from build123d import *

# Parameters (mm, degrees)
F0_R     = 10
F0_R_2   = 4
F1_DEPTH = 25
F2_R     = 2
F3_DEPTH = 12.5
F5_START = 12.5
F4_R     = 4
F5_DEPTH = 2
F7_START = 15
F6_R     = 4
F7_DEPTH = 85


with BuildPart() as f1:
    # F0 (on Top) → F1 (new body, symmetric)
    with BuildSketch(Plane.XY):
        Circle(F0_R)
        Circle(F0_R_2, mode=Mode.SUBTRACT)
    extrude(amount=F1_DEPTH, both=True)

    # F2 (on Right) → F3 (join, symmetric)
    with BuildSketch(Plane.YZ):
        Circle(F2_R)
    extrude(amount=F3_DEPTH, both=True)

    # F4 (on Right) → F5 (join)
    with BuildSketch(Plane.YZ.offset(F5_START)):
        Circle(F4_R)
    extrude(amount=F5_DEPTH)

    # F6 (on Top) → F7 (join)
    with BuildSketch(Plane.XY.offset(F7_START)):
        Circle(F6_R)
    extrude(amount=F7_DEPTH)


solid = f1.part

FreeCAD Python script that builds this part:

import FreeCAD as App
import Part
import Sketcher
Q = App.Units.Quantity

doc = App.newDocument("Part")
body = doc.addObject("PartDesign::Body", "Body")

# Sketch on XY plane
sketch1 = doc.addObject("Sketcher::SketchObject", "Sketch")
body.addObject(sketch1)
sketch1.AttachmentSupport = (doc.XY_Plane, [""])
sketch1.MapMode = "FlatFace"
sketch1.addGeometry([
    Part.Circle(App.Vector(0, 0, 0), App.Vector(0, 0, 1), 10),
    Part.Circle(App.Vector(0, 0, 0), App.Vector(0, 0, 1), 4),
], False)
sketch1.addConstraint([
    Sketcher.Constraint("Coincident", 0, 3, -1, 1),
    Sketcher.Constraint("Coincident", 1, 3, -1, 1),
    Sketcher.Constraint("Diameter", 0, Q("20 mm")),
    Sketcher.Constraint("Diameter", 1, Q("8 mm")),
])
pad1 = doc.addObject("PartDesign::Pad", "Pad")
body.addObject(pad1)
pad1.Profile = sketch1
pad1.Length = 50
pad1.Midplane = True

# Sketch on YZ plane
sketch2 = doc.addObject("Sketcher::SketchObject", "Sketch001")
body.addObject(sketch2)
sketch2.AttachmentSupport = (doc.YZ_Plane, [""])
sketch2.MapMode = "FlatFace"
sketch2.addGeometry(Part.Circle(App.Vector(0, 0, 0), App.Vector(0, 0, 1), 2), False)
sketch2.addConstraint([
    Sketcher.Constraint("Coincident", 0, 3, -1, 1),
    Sketcher.Constraint("Diameter", 0, Q("4 mm")),
])
pad2 = doc.addObject("PartDesign::Pad", "Pad001")
body.addObject(pad2)
pad2.Profile = sketch2
pad2.Length = 25
pad2.Midplane = True

# Sketch on YZ plane
sketch3 = doc.addObject("Sketcher::SketchObject", "Sketch002")
body.addObject(sketch3)
sketch3.AttachmentSupport = (doc.YZ_Plane, [""])
sketch3.MapMode = "FlatFace"
sketch3.AttachmentOffset = App.Placement(App.Vector(0, 0, 12.5), App.Rotation())
sketch3.addGeometry(Part.Circle(App.Vector(0, 0, 0), App.Vector(0, 0, 1), 4), False)
sketch3.addConstraint([
    Sketcher.Constraint("Coincident", 0, 3, -1, 1),
    Sketcher.Constraint("Diameter", 0, Q("8 mm")),
])
pad3 = doc.addObject("PartDesign::Pad", "Pad002")
body.addObject(pad3)
pad3.Profile = sketch3
pad3.Length = 2

# Sketch on XY plane
sketch4 = doc.addObject("Sketcher::SketchObject", "Sketch003")
body.addObject(sketch4)
sketch4.AttachmentSupport = (doc.XY_Plane, [""])
sketch4.MapMode = "FlatFace"
sketch4.AttachmentOffset = App.Placement(App.Vector(0, 0, 15), App.Rotation())
sketch4.addGeometry(Part.Circle(App.Vector(0, 0, 0), App.Vector(0, 0, 1), 4), False)
sketch4.addConstraint([
    Sketcher.Constraint("Coincident", 0, 3, -1, 1),
    Sketcher.Constraint("Diameter", 0, Q("8 mm")),
])
pad4 = doc.addObject("PartDesign::Pad", "Pad003")
body.addObject(pad4)
pad4.Profile = sketch4
pad4.Length = 85

doc.recompute()
